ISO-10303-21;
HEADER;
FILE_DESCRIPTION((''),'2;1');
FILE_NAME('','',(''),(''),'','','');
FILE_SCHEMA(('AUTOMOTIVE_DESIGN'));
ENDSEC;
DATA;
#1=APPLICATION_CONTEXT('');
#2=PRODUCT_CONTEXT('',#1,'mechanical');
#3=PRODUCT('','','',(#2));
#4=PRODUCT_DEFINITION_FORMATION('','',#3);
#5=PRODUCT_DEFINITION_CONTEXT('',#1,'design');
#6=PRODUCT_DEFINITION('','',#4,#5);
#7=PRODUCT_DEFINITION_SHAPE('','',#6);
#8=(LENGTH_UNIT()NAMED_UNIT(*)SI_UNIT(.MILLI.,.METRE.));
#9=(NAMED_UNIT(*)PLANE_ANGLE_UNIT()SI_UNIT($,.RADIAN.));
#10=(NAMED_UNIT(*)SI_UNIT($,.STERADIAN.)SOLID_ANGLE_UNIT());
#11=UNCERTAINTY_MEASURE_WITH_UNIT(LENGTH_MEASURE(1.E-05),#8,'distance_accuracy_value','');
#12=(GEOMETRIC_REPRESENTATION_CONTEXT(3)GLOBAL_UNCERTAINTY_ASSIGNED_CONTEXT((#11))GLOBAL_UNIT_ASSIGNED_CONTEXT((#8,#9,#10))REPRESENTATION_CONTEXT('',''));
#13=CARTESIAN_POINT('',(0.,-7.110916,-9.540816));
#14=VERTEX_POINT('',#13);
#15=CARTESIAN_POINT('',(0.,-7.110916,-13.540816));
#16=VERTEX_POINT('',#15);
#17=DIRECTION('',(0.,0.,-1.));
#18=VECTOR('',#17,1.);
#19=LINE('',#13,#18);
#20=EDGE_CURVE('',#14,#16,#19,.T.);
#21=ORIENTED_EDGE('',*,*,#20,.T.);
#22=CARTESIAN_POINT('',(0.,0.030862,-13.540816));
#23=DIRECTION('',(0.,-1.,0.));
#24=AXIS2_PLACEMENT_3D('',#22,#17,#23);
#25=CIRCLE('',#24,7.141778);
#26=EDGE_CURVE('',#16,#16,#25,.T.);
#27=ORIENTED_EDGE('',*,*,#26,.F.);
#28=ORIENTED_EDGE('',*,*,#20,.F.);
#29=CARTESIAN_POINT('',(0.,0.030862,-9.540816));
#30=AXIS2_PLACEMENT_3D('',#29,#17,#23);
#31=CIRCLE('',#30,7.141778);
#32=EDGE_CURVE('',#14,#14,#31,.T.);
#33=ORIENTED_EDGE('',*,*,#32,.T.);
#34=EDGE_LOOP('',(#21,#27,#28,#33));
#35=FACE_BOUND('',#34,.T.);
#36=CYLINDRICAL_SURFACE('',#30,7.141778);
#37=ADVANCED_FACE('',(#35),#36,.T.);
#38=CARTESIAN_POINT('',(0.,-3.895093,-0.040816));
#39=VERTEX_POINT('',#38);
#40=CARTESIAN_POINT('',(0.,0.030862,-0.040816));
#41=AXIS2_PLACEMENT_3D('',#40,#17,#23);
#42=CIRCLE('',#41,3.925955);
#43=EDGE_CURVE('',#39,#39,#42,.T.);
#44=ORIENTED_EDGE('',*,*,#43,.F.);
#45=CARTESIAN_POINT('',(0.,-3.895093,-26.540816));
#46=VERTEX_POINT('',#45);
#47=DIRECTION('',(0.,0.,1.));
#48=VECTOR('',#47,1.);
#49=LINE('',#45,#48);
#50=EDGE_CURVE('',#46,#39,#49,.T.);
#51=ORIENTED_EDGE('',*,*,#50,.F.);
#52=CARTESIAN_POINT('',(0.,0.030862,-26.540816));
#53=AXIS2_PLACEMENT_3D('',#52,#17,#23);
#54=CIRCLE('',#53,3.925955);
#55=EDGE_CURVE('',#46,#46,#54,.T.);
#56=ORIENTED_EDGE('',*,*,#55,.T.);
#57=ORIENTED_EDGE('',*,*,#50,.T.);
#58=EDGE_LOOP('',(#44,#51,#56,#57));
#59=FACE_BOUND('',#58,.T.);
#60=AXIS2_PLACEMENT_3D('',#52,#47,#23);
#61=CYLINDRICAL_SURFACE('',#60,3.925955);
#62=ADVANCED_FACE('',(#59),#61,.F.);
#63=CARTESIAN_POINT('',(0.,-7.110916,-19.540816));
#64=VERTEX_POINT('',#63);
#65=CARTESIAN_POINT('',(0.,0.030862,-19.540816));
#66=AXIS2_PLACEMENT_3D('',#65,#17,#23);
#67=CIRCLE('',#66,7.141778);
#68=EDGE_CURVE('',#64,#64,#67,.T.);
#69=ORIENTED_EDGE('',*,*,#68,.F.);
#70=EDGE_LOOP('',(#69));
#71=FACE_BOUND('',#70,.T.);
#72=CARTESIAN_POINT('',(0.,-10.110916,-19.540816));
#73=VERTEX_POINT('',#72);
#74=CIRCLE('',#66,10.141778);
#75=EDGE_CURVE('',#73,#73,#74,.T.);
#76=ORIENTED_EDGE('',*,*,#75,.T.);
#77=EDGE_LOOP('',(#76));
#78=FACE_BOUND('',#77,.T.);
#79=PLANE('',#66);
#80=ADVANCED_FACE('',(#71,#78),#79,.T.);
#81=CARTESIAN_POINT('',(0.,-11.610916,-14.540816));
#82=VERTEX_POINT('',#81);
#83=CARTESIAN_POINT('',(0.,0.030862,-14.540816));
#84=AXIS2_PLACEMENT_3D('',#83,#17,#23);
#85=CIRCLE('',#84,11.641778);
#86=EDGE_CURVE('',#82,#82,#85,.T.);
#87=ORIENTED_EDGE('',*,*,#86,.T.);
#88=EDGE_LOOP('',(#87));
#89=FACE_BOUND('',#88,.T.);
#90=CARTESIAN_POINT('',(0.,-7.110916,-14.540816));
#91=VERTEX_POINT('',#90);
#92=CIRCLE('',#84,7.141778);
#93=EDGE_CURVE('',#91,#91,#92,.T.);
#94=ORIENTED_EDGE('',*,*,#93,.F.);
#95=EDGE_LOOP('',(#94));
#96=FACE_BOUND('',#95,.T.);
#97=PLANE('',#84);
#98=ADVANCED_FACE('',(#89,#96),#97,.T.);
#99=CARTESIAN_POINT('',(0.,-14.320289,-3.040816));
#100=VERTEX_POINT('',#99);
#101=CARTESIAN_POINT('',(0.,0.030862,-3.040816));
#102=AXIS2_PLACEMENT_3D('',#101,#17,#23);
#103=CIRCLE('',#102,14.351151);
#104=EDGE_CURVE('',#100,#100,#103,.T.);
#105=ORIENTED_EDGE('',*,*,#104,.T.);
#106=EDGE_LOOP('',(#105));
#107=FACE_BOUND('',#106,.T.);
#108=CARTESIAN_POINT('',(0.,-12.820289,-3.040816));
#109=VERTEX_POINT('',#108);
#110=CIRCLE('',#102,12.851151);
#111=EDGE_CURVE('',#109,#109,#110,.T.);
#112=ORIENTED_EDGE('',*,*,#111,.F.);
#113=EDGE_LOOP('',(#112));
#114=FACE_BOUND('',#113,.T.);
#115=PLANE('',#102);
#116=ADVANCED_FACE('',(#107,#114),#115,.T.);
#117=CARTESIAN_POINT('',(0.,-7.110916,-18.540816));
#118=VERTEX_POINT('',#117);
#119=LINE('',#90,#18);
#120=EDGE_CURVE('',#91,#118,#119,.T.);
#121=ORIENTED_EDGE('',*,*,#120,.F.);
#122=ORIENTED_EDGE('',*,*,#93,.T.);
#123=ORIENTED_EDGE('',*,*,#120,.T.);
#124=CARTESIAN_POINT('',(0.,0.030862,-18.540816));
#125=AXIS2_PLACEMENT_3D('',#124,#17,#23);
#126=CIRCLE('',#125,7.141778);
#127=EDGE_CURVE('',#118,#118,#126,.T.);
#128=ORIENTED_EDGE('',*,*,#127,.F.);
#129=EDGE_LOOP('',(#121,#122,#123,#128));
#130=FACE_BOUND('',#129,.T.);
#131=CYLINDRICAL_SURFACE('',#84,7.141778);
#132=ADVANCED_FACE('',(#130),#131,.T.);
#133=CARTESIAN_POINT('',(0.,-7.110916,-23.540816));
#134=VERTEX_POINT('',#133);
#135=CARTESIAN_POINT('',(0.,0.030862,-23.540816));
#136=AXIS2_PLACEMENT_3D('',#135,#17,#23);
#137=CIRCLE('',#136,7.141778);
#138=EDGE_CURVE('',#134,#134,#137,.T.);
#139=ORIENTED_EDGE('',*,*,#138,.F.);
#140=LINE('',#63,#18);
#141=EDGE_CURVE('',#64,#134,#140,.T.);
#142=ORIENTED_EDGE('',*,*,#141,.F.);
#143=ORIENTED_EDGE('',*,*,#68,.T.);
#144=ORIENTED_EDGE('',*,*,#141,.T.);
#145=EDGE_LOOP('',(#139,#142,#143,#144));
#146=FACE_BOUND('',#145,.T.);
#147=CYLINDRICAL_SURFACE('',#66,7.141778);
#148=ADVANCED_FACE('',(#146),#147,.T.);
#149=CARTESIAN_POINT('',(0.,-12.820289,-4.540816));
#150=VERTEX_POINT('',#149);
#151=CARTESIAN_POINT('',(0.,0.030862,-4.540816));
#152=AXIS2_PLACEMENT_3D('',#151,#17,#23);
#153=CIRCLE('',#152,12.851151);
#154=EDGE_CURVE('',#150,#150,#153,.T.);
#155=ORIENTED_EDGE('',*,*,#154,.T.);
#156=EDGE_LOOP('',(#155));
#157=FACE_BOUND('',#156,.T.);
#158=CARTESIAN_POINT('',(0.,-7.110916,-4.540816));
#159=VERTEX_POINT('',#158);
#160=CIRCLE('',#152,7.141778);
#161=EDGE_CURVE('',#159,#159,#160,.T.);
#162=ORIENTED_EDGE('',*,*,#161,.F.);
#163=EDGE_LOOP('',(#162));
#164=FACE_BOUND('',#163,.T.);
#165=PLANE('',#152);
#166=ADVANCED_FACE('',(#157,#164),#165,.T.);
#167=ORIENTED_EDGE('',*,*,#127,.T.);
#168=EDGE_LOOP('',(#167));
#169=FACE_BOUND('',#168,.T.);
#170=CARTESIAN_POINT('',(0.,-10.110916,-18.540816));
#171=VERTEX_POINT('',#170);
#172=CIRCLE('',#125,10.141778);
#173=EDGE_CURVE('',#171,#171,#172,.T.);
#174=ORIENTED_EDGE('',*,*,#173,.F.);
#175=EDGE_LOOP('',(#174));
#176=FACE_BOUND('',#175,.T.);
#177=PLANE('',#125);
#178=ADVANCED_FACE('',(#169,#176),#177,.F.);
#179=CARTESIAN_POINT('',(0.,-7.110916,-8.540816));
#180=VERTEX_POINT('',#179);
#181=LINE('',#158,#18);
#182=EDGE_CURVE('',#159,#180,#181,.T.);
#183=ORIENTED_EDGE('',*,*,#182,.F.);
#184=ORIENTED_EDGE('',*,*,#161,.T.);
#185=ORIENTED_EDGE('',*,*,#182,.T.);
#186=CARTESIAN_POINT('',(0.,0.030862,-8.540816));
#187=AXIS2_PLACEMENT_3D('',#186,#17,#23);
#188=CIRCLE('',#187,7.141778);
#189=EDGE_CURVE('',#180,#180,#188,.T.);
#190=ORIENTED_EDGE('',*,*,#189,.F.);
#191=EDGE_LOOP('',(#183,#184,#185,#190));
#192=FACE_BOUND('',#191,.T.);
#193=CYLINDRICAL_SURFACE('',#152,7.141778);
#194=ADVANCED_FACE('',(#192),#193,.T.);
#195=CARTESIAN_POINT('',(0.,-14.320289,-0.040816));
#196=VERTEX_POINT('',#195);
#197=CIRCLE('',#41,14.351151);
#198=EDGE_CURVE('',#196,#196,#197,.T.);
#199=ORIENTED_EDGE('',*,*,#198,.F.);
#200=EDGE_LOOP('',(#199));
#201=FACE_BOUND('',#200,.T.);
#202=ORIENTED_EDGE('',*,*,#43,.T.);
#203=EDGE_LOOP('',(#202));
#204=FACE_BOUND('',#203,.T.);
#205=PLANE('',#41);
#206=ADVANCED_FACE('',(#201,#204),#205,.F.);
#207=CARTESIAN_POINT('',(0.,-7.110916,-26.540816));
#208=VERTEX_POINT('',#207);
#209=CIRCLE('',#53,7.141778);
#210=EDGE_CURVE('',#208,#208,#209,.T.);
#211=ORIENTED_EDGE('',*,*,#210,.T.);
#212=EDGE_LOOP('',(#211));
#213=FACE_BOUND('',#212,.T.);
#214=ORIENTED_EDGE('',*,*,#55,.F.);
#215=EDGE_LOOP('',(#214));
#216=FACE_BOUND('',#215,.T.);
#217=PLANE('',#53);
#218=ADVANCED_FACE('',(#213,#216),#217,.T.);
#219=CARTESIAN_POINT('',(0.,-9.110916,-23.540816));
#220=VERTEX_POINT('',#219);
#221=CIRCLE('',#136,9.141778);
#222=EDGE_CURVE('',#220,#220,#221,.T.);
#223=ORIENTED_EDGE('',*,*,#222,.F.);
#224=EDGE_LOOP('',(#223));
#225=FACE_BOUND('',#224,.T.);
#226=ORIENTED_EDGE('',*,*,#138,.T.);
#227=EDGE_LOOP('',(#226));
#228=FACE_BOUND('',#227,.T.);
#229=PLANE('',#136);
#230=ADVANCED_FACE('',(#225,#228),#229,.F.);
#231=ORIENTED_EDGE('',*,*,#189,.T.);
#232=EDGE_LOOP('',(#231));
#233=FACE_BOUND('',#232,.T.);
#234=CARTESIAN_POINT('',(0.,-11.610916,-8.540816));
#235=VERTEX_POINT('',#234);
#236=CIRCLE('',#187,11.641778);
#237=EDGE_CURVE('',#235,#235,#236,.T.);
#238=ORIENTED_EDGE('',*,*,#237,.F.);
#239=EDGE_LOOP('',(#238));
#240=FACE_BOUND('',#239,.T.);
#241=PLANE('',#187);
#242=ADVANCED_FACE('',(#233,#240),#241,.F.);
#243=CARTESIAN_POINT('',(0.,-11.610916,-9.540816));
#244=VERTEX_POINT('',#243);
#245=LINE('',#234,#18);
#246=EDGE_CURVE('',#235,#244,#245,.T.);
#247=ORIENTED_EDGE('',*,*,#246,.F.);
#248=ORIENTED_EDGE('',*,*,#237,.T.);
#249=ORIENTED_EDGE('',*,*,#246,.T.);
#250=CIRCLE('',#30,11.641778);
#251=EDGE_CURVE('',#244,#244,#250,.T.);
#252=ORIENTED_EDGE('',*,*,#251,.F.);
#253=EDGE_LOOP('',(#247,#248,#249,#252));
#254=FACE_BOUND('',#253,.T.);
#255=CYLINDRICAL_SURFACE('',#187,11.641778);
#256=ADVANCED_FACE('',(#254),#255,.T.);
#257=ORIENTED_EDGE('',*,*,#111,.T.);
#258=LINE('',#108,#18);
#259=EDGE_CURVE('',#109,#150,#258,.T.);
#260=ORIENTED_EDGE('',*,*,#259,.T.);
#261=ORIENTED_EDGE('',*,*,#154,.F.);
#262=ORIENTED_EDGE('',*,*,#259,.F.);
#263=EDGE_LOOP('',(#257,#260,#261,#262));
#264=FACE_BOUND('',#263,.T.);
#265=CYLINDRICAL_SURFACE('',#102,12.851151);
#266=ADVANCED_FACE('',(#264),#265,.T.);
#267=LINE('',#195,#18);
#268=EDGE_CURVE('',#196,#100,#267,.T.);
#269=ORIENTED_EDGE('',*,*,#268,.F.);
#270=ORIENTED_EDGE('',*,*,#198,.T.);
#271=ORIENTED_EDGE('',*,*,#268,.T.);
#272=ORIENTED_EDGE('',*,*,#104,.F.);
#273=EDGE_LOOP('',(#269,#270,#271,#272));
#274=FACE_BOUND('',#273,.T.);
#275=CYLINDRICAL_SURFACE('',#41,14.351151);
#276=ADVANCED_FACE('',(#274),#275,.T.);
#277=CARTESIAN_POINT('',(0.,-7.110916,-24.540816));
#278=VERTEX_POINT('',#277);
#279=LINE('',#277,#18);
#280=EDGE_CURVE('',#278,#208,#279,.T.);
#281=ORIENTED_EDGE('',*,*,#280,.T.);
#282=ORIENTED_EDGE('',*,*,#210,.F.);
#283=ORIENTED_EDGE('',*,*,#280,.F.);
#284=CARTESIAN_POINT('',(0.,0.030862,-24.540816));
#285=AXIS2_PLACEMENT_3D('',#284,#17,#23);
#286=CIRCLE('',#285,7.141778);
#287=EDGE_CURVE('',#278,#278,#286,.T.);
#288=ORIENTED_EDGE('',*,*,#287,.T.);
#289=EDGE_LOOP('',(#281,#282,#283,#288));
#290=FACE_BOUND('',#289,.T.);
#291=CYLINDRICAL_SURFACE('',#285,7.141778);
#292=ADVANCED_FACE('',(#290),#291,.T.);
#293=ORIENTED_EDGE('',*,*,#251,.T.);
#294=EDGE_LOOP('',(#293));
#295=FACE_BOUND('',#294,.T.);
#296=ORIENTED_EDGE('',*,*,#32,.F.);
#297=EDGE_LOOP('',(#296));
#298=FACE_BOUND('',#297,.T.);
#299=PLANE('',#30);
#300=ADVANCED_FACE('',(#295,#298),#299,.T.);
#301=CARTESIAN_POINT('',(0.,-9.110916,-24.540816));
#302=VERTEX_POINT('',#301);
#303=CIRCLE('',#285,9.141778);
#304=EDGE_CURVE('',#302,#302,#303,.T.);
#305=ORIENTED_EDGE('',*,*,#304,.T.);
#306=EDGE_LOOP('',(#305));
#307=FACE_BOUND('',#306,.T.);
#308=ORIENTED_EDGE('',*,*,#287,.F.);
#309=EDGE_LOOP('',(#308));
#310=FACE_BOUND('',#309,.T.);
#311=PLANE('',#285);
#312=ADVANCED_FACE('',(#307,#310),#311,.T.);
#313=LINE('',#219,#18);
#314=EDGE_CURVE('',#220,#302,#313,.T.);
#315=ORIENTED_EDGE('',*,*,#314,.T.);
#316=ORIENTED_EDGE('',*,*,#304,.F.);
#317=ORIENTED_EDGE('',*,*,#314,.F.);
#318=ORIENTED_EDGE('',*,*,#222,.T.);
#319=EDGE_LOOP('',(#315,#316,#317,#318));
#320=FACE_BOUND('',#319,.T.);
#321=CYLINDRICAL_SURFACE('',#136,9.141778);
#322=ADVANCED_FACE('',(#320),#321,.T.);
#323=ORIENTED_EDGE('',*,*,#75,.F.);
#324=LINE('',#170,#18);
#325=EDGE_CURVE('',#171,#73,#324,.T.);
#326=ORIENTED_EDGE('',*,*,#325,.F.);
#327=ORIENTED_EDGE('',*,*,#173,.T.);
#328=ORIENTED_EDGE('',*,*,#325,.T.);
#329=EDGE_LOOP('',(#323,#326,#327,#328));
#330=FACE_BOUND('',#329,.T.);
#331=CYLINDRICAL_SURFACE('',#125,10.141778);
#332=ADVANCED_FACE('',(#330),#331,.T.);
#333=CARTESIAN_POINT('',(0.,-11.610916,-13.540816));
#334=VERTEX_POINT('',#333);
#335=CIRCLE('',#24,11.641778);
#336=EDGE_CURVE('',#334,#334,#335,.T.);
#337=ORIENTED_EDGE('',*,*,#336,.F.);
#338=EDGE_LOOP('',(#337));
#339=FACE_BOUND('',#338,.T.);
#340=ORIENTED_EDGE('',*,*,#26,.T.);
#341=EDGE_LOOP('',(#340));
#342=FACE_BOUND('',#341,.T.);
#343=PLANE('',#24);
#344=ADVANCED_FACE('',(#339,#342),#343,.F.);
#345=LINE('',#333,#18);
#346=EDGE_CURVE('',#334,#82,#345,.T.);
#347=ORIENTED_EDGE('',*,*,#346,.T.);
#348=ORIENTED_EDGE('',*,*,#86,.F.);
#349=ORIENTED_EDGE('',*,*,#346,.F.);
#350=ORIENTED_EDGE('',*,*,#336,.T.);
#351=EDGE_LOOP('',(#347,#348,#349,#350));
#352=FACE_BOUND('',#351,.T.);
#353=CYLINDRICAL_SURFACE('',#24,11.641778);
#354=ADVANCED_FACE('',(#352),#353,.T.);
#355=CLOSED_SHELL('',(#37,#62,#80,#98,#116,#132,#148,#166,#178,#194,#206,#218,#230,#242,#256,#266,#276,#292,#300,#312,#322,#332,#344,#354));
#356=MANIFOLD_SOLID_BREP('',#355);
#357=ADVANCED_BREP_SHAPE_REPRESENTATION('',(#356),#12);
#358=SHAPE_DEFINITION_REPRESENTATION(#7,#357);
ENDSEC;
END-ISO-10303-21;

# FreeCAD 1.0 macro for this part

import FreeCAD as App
import Part
import Sketcher
from FreeCAD import Vector


def add_polygon(sketch, points):
    """Adds a closed chain of lines whose ends are joined by coincident constraints."""
    first, n = sketch.GeometryCount, len(points)
    for a, b in zip(points, points[1:] + points[:1]):
        sketch.addGeometry(Part.LineSegment(App.Vector(*a, 0), App.Vector(*b, 0)), False)
    for i in range(n):
        sketch.addConstraint(Sketcher.Constraint("Coincident", first + i, 2, first + (i + 1) % n, 1))

doc = App.newDocument("Part")
body = doc.addObject("PartDesign::Body", "Body")

# Sketch on YZ plane
sketch1 = body.newObject("Sketcher::SketchObject", "Sketch")
sketch1.AttachmentSupport = (doc.getObject("YZ_Plane"), [""])
sketch1.MapMode = "FlatFace"
add_polygon(sketch1, [(-3.9, -26.5), (-3.9, 0), (-14.3, 0), (-14.3, -3), (-12.8, -3), (-12.8, -4.5), (-7.1, -4.5), (-7.1, -8.5), (-11.6, -8.5), (-11.6, -9.5), (-7.1, -9.5), (-7.1, -13.5), (-11.6, -13.5), (-11.6, -14.5), (-7.1, -14.5), (-7.1, -18.5), (-10.1, -18.5), (-10.1, -19.5), (-7.1, -19.5), (-7.1, -23.5), (-9.1, -23.5), (-9.1, -24.5), (-7.1, -24.5), (-7.1, -26.5)])  # lines 0-23
sketch1.addGeometry(Part.LineSegment(Vector(0, 0, 0), Vector(0, -26.5, 0)), True)  # axis
sketch1.addConstraint([
    Sketcher.Constraint("Vertical", 0),
    Sketcher.Constraint("Horizontal", 1),
    Sketcher.Constraint("Vertical", 2),
    Sketcher.Constraint("Horizontal", 3),
    Sketcher.Constraint("Vertical", 4),
    Sketcher.Constraint("Horizontal", 5),
    Sketcher.Constraint("Vertical", 6),
    Sketcher.Constraint("Horizontal", 7),
    Sketcher.Constraint("Vertical", 8),
    Sketcher.Constraint("Horizontal", 9),
    Sketcher.Constraint("Vertical", 10),
    Sketcher.Constraint("Horizontal", 11),
    Sketcher.Constraint("Vertical", 12),
    Sketcher.Constraint("Horizontal", 13),
    Sketcher.Constraint("Vertical", 14),
    Sketcher.Constraint("Horizontal", 15),
    Sketcher.Constraint("Vertical", 16),
    Sketcher.Constraint("Horizontal", 17),
    Sketcher.Constraint("Vertical", 18),
    Sketcher.Constraint("Horizontal", 19),
    Sketcher.Constraint("Vertical", 20),
    Sketcher.Constraint("Horizontal", 21),
    Sketcher.Constraint("Vertical", 22),
    Sketcher.Constraint("Horizontal", 23),
    Sketcher.Constraint("Vertical", 24),
    Sketcher.Constraint("Horizontal", 1, 2, 24, 1),
    Sketcher.Constraint("Horizontal", 23, 2, 24, 2),
    Sketcher.Constraint("Vertical", 6, 2, 9, 2),
    Sketcher.Constraint("Vertical", 8, 2, 11, 2),
    Sketcher.Constraint("Vertical", 10, 2, 13, 2),
    Sketcher.Constraint("Vertical", 14, 2, 17, 2),
    Sketcher.Constraint("Vertical", 18, 2, 21, 2),
    Sketcher.Constraint("Equal", 17, 2),
    Sketcher.Constraint("Equal", 3, 4),
    Sketcher.Constraint("Equal", 6, 10),
    Sketcher.Constraint("Equal", 8, 12),
    Sketcher.Constraint("Equal", 10, 14),
    Sketcher.Constraint("Equal", 12, 16),
    Sketcher.Constraint("Equal", 14, 18),
    Sketcher.Constraint("Equal", 16, 20),
    Sketcher.Constraint("Equal", 21, 22),
    Sketcher.Constraint("DistanceX", 15, 2, 15, 1, 3.0),
    Sketcher.Constraint("DistanceX", 19, 2, 19, 1, 2.0),
    Sketcher.Constraint("DistanceY", 6, 2, 6, 1, 4.0),
    Sketcher.Constraint("DistanceY", 8, 2, 8, 1, 1.0),
    Sketcher.Constraint("DistanceX", 3, 1, 3, 2, 1.5),
    Sketcher.Constraint("DistanceX", 7, 2, 7, 1, 4.5),
    Sketcher.Constraint("DistanceX", 1, 2, 1, 1, 10.425196),
    Sketcher.Constraint("DistanceX", 5, 1, 5, 2, 5.709373),
    Sketcher.Constraint("DistanceX", 1, 2, -1, 1, 14.320289),
    Sketcher.Constraint("DistanceX", 3, 2, 24, 1, 12.851151),
    Sketcher.Constraint("DistanceY", 0, 2, -1, 1, 0.040816),
])
revolution = body.newObject("PartDesign::Revolution", "Revolution")
revolution.Profile = sketch1
revolution.ReferenceAxis = (sketch1, ["Axis0"])
revolution.Angle = 360

doc.recompute()
